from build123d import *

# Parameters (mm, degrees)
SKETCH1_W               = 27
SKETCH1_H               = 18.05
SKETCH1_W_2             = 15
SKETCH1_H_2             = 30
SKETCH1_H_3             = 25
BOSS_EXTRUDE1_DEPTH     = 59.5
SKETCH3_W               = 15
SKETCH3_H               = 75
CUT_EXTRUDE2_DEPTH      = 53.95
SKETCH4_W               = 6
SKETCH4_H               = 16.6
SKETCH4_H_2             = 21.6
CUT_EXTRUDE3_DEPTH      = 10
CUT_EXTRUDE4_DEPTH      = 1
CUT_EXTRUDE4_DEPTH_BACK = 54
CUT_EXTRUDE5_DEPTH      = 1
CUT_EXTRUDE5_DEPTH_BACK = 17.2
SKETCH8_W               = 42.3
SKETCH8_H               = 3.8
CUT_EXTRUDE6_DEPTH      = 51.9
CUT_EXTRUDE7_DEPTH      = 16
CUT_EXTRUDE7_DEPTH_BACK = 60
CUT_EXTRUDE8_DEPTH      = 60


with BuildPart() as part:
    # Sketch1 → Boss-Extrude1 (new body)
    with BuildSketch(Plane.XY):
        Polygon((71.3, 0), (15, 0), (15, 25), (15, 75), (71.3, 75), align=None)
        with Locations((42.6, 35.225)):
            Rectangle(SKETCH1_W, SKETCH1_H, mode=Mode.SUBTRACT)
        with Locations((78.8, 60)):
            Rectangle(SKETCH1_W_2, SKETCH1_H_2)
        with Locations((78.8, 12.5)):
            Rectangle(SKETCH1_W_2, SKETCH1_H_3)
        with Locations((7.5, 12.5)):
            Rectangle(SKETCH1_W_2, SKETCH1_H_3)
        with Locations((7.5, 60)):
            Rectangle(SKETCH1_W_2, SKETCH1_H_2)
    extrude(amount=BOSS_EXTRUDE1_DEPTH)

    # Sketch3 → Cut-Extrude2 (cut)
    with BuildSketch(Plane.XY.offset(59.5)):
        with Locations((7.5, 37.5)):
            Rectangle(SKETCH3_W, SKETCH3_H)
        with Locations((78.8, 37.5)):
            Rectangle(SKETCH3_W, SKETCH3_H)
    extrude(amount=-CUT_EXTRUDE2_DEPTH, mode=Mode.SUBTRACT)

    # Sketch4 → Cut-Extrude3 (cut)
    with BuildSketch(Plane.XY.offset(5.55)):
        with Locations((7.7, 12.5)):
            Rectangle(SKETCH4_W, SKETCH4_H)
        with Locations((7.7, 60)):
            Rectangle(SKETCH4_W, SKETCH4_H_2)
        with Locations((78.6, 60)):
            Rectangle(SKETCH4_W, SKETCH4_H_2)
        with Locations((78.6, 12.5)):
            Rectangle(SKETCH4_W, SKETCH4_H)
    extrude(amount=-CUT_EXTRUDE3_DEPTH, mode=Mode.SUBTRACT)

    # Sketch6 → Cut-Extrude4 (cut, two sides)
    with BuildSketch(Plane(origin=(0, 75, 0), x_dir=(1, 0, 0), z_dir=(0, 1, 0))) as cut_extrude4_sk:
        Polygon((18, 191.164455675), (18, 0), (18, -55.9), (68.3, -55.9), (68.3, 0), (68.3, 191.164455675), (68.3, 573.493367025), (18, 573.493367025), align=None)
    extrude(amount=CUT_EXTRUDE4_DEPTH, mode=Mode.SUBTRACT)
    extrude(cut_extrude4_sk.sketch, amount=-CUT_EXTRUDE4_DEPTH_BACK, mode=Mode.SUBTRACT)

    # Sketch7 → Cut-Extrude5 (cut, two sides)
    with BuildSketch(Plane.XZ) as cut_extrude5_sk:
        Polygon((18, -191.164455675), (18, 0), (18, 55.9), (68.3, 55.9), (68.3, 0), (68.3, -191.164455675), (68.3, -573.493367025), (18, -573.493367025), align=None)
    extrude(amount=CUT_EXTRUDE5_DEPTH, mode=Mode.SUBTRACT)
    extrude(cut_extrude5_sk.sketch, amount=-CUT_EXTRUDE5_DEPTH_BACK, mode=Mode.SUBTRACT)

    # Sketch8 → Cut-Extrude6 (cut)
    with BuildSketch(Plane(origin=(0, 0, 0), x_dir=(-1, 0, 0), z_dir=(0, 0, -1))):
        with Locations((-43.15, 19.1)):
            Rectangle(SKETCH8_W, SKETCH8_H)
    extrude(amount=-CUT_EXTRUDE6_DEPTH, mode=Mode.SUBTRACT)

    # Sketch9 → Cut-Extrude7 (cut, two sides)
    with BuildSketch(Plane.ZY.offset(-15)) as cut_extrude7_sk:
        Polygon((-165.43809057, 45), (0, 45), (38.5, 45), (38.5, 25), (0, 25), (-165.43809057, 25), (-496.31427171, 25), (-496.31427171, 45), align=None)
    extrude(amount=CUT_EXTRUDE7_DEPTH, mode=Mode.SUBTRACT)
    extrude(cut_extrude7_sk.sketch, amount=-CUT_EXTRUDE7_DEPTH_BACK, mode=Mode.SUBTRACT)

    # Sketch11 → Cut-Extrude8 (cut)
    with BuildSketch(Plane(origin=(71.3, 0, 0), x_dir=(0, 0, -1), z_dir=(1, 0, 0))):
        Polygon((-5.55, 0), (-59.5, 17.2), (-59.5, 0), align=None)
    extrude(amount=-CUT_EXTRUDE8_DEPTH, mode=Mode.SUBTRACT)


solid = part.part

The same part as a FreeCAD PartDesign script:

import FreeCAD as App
import Part
import Sketcher
from FreeCAD import Vector

doc = App.newDocument("Part")
body = doc.addObject("PartDesign::Body", "Body")

sketch1 = doc.addObject("Sketcher::SketchObject", "Sketch")
body.addObject(sketch1)
sketch1.AttachmentSupport = (doc.XY_Plane, [""])
sketch1.MapMode = "FlatFace"
sketch1.addGeometry([
    Part.LineSegment(Vector(0, 0, 0), Vector(86.3, 0, 0)),
    Part.LineSegment(Vector(86.3, 0, 0), Vector(86.3, 25, 0)),
    Part.LineSegment(Vector(86.3, 25, 0), Vector(71.3, 25, 0)),
    Part.LineSegment(Vector(71.3, 25, 0), Vector(71.3, 45, 0)),
    Part.LineSegment(Vector(71.3, 45, 0), Vector(86.3, 45, 0)),
    Part.LineSegment(Vector(86.3, 45, 0), Vector(86.3, 75, 0)),
    Part.LineSegment(Vector(86.3, 75, 0), Vector(0, 75, 0)),
    Part.LineSegment(Vector(0, 75, 0), Vector(0, 45, 0)),
    Part.LineSegment(Vector(0, 45, 0), Vector(15, 45, 0)),
    Part.LineSegment(Vector(15, 45, 0), Vector(15, 25, 0)),
    Part.LineSegment(Vector(15, 25, 0), Vector(0, 25, 0)),
    Part.LineSegment(Vector(0, 25, 0), Vector(0, 0, 0)),
    Part.LineSegment(Vector(29.1, 26.2, 0), Vector(29.1, 44.25, 0)),
    Part.LineSegment(Vector(29.1, 44.25, 0), Vector(56.1, 44.25, 0)),
    Part.LineSegment(Vector(56.1, 44.25, 0), Vector(56.1, 26.2, 0)),
    Part.LineSegment(Vector(56.1, 26.2, 0), Vector(29.1, 26.2, 0)),
], False)
sketch1.addConstraint([
    Sketcher.Constraint("Coincident", 0, 2, 1, 1),
    Sketcher.Constraint("Coincident", 1, 2, 2, 1),
    Sketcher.Constraint("Coincident", 2, 2, 3, 1),
    Sketcher.Constraint("Coincident", 3, 2, 4, 1),
    Sketcher.Constraint("Coincident", 4, 2, 5, 1),
    Sketcher.Constraint("Coincident", 5, 2, 6, 1),
    Sketcher.Constraint("Coincident", 6, 2, 7, 1),
    Sketcher.Constraint("Coincident", 7, 2, 8, 1),
    Sketcher.Constraint("Coincident", 8, 2, 9, 1),
    Sketcher.Constraint("Coincident", 9, 2, 10, 1),
    Sketcher.Constraint("Coincident", 10, 2, 11, 1),
    Sketcher.Constraint("Coincident", 11, 2, 0, 1),
    Sketcher.Constraint("Coincident", 12, 2, 13, 1),
    Sketcher.Constraint("Coincident", 13, 2, 14, 1),
    Sketcher.Constraint("Coincident", 14, 2, 15, 1),
    Sketcher.Constraint("Coincident", 15, 2, 12, 1),
    Sketcher.Constraint("Horizontal", 0),
    Sketcher.Constraint("Vertical", 1),
    Sketcher.Constraint("Horizontal", 2),
    Sketcher.Constraint("Vertical", 3),
    Sketcher.Constraint("Horizontal", 4),
    Sketcher.Constraint("Vertical", 5),
    Sketcher.Constraint("Horizontal", 6),
    Sketcher.Constraint("Vertical", 7),
    Sketcher.Constraint("Horizontal", 8),
    Sketcher.Constraint("Vertical", 9),
    Sketcher.Constraint("Horizontal", 10),
    Sketcher.Constraint("Vertical", 11),
    Sketcher.Constraint("Vertical", 12),
    Sketcher.Constraint("Horizontal", 13),
    Sketcher.Constraint("Vertical", 14),
    Sketcher.Constraint("Horizontal", 15),
    Sketcher.Constraint("Coincident", 11, 2, -1, 1),
    Sketcher.Constraint("PointOnObject", 6, 2, -2),
    Sketcher.Constraint("Horizontal", 4, 2, 7, 2),
    Sketcher.Constraint("Horizontal", 2, 2, 9, 2),
    Sketcher.Constraint("Vertical", 1, 2, 4, 2),
    Sketcher.Constraint("Equal", 4, 8),
    Sketcher.Constraint("DistanceX", 2, 2, 2, 1, 15.0),
    Sketcher.Constraint("DistanceX", 13, 1, 13, 2, 27.0),
    Sketcher.Constraint("DistanceY", 1, 1, 1, 2, 25.0),
    Sketcher.Constraint("DistanceY", 3, 1, 3, 2, 20.0),
    Sketcher.Constraint("DistanceY", 5, 1, 5, 2, 30.0),
    Sketcher.Constraint("DistanceX", 0, 1, 0, 2, 86.3),
    Sketcher.Constraint("DistanceY", 12, 1, 12, 2, 18.05),
    Sketcher.Constraint("DistanceX", -1, 1, 12, 2, 29.1),
    Sketcher.Constraint("DistanceY", -1, 1, 14, 2, 26.2),
])
pad1 = doc.addObject("PartDesign::Pad", "Pad")
body.addObject(pad1)
pad1.Profile = sketch1
pad1.Length = 59.5

sketch2 = doc.addObject("Sketcher::SketchObject", "Sketch001")
body.addObject(sketch2)
sketch2.AttachmentSupport = (doc.XY_Plane, [""])
sketch2.MapMode = "FlatFace"
sketch2.AttachmentOffset = App.Placement(Vector(0, 0, 59.5), App.Rotation())
sketch2.addGeometry([
    Part.LineSegment(Vector(0, 75, 0), Vector(0, 0, 0)),
    Part.LineSegment(Vector(0, 0, 0), Vector(15, 0, 0)),
    Part.LineSegment(Vector(15, 0, 0), Vector(15, 75, 0)),
    Part.LineSegment(Vector(15, 75, 0), Vector(0, 75, 0)),
    Part.LineSegment(Vector(71.3, 75, 0), Vector(71.3, 0, 0)),
    Part.LineSegment(Vector(71.3, 0, 0), Vector(86.3, 0, 0)),
    Part.LineSegment(Vector(86.3, 0, 0), Vector(86.3, 75, 0)),
    Part.LineSegment(Vector(86.3, 75, 0), Vector(71.3, 75, 0)),
], False)
sketch2.addConstraint([
    Sketcher.Constraint("Coincident", 0, 2, 1, 1),
    Sketcher.Constraint("Coincident", 1, 2, 2, 1),
    Sketcher.Constraint("Coincident", 2, 2, 3, 1),
    Sketcher.Constraint("Coincident", 3, 2, 0, 1),
    Sketcher.Constraint("Coincident", 4, 2, 5, 1),
    Sketcher.Constraint("Coincident", 5, 2, 6, 1),
    Sketcher.Constraint("Coincident", 6, 2, 7, 1),
    Sketcher.Constraint("Coincident", 7, 2, 4, 1),
    Sketcher.Constraint("Vertical", 0),
    Sketcher.Constraint("Horizontal", 1),
    Sketcher.Constraint("Vertical", 2),
    Sketcher.Constraint("Horizontal", 3),
    Sketcher.Constraint("Vertical", 4),
    Sketcher.Constraint("Horizontal", 5),
    Sketcher.Constraint("Vertical", 6),
    Sketcher.Constraint("Horizontal", 7),
    Sketcher.Constraint("Coincident", 0, 2, -1, 1),
    Sketcher.Constraint("PointOnObject", 4, 2, -1),
    Sketcher.Constraint("Horizontal", 3, 2, 6, 2),
    Sketcher.Constraint("Equal", 3, 5),
    Sketcher.Constraint("DistanceX", 1, 1, 1, 2, 15.0),
    Sketcher.Constraint("DistanceY", 0, 2, 0, 1, 75.0),
    Sketcher.Constraint("DistanceX", -1, 1, 4, 2, 71.3),
])
pocket1 = doc.addObject("PartDesign::Pocket", "Pocket")
body.addObject(pocket1)
pocket1.Profile = sketch2
pocket1.Length = 53.95

sketch3 = doc.addObject("Sketcher::SketchObject", "Sketch002")
body.addObject(sketch3)
sketch3.AttachmentSupport = (doc.XY_Plane, [""])
sketch3.MapMode = "FlatFace"
sketch3.AttachmentOffset = App.Placement(Vector(0, 0, 5.55), App.Rotation())
sketch3.addGeometry([
    Part.LineSegment(Vector(4.7, 20.8, 0), Vector(4.7, 4.2, 0)),
    Part.LineSegment(Vector(4.7, 4.2, 0), Vector(10.7, 4.2, 0)),
    Part.LineSegment(Vector(10.7, 4.2, 0), Vector(10.7, 20.8, 0)),
    Part.LineSegment(Vector(10.7, 20.8, 0), Vector(4.7, 20.8, 0)),
    Part.LineSegment(Vector(4.7, 70.8, 0), Vector(4.7, 49.2, 0)),
    Part.LineSegment(Vector(4.7, 49.2, 0), Vector(10.7, 49.2, 0)),
    Part.LineSegment(Vector(10.7, 49.2, 0), Vector(10.7, 70.8, 0)),
    Part.LineSegment(Vector(10.7, 70.8, 0), Vector(4.7, 70.8, 0)),
    Part.LineSegment(Vector(75.6, 70.8, 0), Vector(75.6, 49.2, 0)),
    Part.LineSegment(Vector(75.6, 49.2, 0), Vector(81.6, 49.2, 0)),
    Part.LineSegment(Vector(81.6, 49.2, 0), Vector(81.6, 70.8, 0)),
    Part.LineSegment(Vector(81.6, 70.8, 0), Vector(75.6, 70.8, 0)),
    Part.LineSegment(Vector(75.6, 20.8, 0), Vector(75.6, 4.2, 0)),
    Part.LineSegment(Vector(75.6, 4.2, 0), Vector(81.6, 4.2, 0)),
    Part.LineSegment(Vector(81.6, 4.2, 0), Vector(81.6, 20.8, 0)),
    Part.LineSegment(Vector(81.6, 20.8, 0), Vector(75.6, 20.8, 0)),
], False)
sketch3.addConstraint([
    Sketcher.Constraint("Coincident", 0, 2, 1, 1),
    Sketcher.Constraint("Coincident", 1, 2, 2, 1),
    Sketcher.Constraint("Coincident", 2, 2, 3, 1),
    Sketcher.Constraint("Coincident", 3, 2, 0, 1),
    Sketcher.Constraint("Coincident", 4, 2, 5, 1),
    Sketcher.Constraint("Coincident", 5, 2, 6, 1),
    Sketcher.Constraint("Coincident", 6, 2, 7, 1),
    Sketcher.Constraint("Coincident", 7, 2, 4, 1),
    Sketcher.Constraint("Coincident", 8, 2, 9, 1),
    Sketcher.Constraint("Coincident", 9, 2, 10, 1),
    Sketcher.Constraint("Coincident", 10, 2, 11, 1),
    Sketcher.Constraint("Coincident", 11, 2, 8, 1),
    Sketcher.Constraint("Coincident", 12, 2, 13, 1),
    Sketcher.Constraint("Coincident", 13, 2, 14, 1),
    Sketcher.Constraint("Coincident", 14, 2, 15, 1),
    Sketcher.Constraint("Coincident", 15, 2, 12, 1),
    Sketcher.Constraint("Vertical", 0),
    Sketcher.Constraint("Horizontal", 1),
    Sketcher.Constraint("Vertical", 2),
    Sketcher.Constraint("Horizontal", 3),
    Sketcher.Constraint("Vertical", 4),
    Sketcher.Constraint("Horizontal", 5),
    Sketcher.Constraint("Vertical", 6),
    Sketcher.Constraint("Horizontal", 7),
    Sketcher.Constraint("Vertical", 8),
    Sketcher.Constraint("Horizontal", 9),
    Sketcher.Constraint("Vertical", 10),
    Sketcher.Constraint("Horizontal", 11),
    Sketcher.Constraint("Vertical", 12),
    Sketcher.Constraint("Horizontal", 13),
    Sketcher.Constraint("Vertical", 14),
    Sketcher.Constraint("Horizontal", 15),
    Sketcher.Constraint("Horizontal", 5, 2, 8, 2),
    Sketcher.Constraint("Horizontal", 7, 2, 10, 2),
    Sketcher.Constraint("Horizontal", 1, 2, 12, 2),
    Sketcher.Constraint("Horizontal", 3, 2, 14, 2),
    Sketcher.Constraint("Vertical", 3, 2, 4, 2),
    Sketcher.Constraint("Vertical", 2, 2, 5, 2),
    Sketcher.Constraint("Vertical", 11, 2, 12, 2),
    Sketcher.Constraint("Vertical", 10, 2, 13, 2),
    Sketcher.Constraint("Equal", 7, 9),
    Sketcher.Constraint("DistanceX", 1, 1, 1, 2, 6.0),
    Sketcher.Constraint("DistanceY", 0, 2, 0, 1, 16.6),
    Sketcher.Constraint("DistanceY", 4, 2, 4, 1, 21.6),
    Sketcher.Constraint("DistanceY", 0, 2, 4, 2, 45.0),
    Sketcher.Constraint("DistanceX", -1, 1, 0, 2, 4.7),
    Sketcher.Constraint("DistanceY", -1, 1, 0, 2, 4.2),
    Sketcher.Constraint("DistanceX", -1, 1, 8, 2, 75.6),
])
pocket2 = doc.addObject("PartDesign::Pocket", "Pocket001")
body.addObject(pocket2)
pocket2.Profile = sketch3
pocket2.Length = 10

sketch4 = doc.addObject("Sketcher::SketchObject", "Sketch003")
body.addObject(sketch4)
sketch4.AttachmentSupport = (doc.XZ_Plane, [""])
sketch4.MapMode = "FlatFace"
sketch4.AttachmentOffset = App.Placement(Vector(0, 0, -75), App.Rotation())
sketch4.addGeometry([
    Part.LineSegment(Vector(18, 55.9, 0), Vector(68.3, 55.9, 0)),
    Part.LineSegment(Vector(68.3, 55.9, 0), Vector(68.3, -573.493367, 0)),
    Part.LineSegment(Vector(68.3, -573.493367, 0), Vector(18, -573.493367, 0)),
    Part.LineSegment(Vector(18, -573.493367, 0), Vector(18, 55.9, 0)),
], False)
sketch4.addConstraint([
    Sketcher.Constraint("Coincident", 0, 2, 1, 1),
    Sketcher.Constraint("Coincident", 1, 2, 2, 1),
    Sketcher.Constraint("Coincident", 2, 2, 3, 1),
    Sketcher.Constraint("Coincident", 3, 2, 0, 1),
    Sketcher.Constraint("Horizontal", 0),
    Sketcher.Constraint("Vertical", 1),
    Sketcher.Constraint("Horizontal", 2),
    Sketcher.Constraint("Vertical", 3),
    Sketcher.Constraint("DistanceX", 0, 1, 0, 2, 50.3),
    Sketcher.Constraint("DistanceX", -1, 1, 2, 2, 18.0),
    Sketcher.Constraint("DistanceY", -1, 1, 0, 2, 55.9),
    Sketcher.Constraint("DistanceY", 1, 2, 1, 1, 629.393367),
])
pocket3 = doc.addObject("PartDesign::Pocket", "Pocket002")
body.addObject(pocket3)
pocket3.Profile = sketch4
pocket3.Type = "TwoLengths"
pocket3.Length = 1
pocket3.Length2 = 54

sketch5 = doc.addObject("Sketcher::SketchObject", "Sketch004")
body.addObject(sketch5)
sketch5.AttachmentSupport = (doc.XZ_Plane, [""])
sketch5.MapMode = "FlatFace"
sketch5.addGeometry([
    Part.LineSegment(Vector(18, 55.9, 0), Vector(18, -573.493367, 0)),
    Part.LineSegment(Vector(18, -573.493367, 0), Vector(68.3, -573.493367, 0)),
    Part.LineSegment(Vector(68.3, -573.493367, 0), Vector(68.3, 55.9, 0)),
    Part.LineSegment(Vector(68.3, 55.9, 0), Vector(18, 55.9, 0)),
], False)
sketch5.addConstraint([
    Sketcher.Constraint("Coincident", 0, 2, 1, 1),
    Sketcher.Constraint("Coincident", 1, 2, 2, 1),
    Sketcher.Constraint("Coincident", 2, 2, 3, 1),
    Sketcher.Constraint("Coincident", 3, 2, 0, 1),
    Sketcher.Constraint("Vertical", 0),
    Sketcher.Constraint("Horizontal", 1),
    Sketcher.Constraint("Vertical", 2),
    Sketcher.Constraint("Horizontal", 3),
    Sketcher.Constraint("DistanceX", 1, 1, 1, 2, 50.3),
    Sketcher.Constraint("DistanceX", -1, 1, 0, 2, 18.0),
    Sketcher.Constraint("DistanceY", -1, 1, 2, 2, 55.9),
    Sketcher.Constraint("DistanceY", 0, 2, 0, 1, 629.393367),
])
pocket4 = doc.addObject("PartDesign::Pocket", "Pocket003")
body.addObject(pocket4)
pocket4.Profile = sketch5
pocket4.Type = "TwoLengths"
pocket4.Length = 1
pocket4.Length2 = 17.2
pocket4.Reversed = True

sketch6 = doc.addObject("Sketcher::SketchObject", "Sketch005")
body.addObject(sketch6)
sketch6.AttachmentSupport = (doc.XY_Plane, [""])
sketch6.MapMode = "FlatFace"
sketch6.addGeometry([
    Part.LineSegment(Vector(64.3, 21, 0), Vector(64.3, 17.2, 0)),
    Part.LineSegment(Vector(64.3, 17.2, 0), Vector(22, 17.2, 0)),
    Part.LineSegment(Vector(22, 17.2, 0), Vector(22, 21, 0)),
    Part.LineSegment(Vector(22, 21, 0), Vector(64.3, 21, 0)),
], False)
sketch6.addConstraint([
    Sketcher.Constraint("Coincident", 0, 2, 1, 1),
    Sketcher.Constraint("Coincident", 1, 2, 2, 1),
    Sketcher.Constraint("Coincident", 2, 2, 3, 1),
    Sketcher.Constraint("Coincident", 3, 2, 0, 1),
    Sketcher.Constraint("Vertical", 0),
    Sketcher.Constraint("Horizontal", 1),
    Sketcher.Constraint("Vertical", 2),
    Sketcher.Constraint("Horizontal", 3),
    Sketcher.Constraint("DistanceX", 1, 2, 1, 1, 42.3),
    Sketcher.Constraint("DistanceY", 0, 2, 0, 1, 3.8),
    Sketcher.Constraint("DistanceX", -1, 1, 1, 2, 22.0),
    Sketcher.Constraint("DistanceY", -1, 1, 2, 2, 21.0),
])
pocket5 = doc.addObject("PartDesign::Pocket", "Pocket004")
body.addObject(pocket5)
pocket5.Profile = sketch6
pocket5.Length = 51.9
pocket5.Reversed = True

sketch7 = doc.addObject("Sketcher::SketchObject", "Sketch006")
body.addObject(sketch7)
sketch7.AttachmentSupport = (doc.YZ_Plane, [""])
sketch7.MapMode = "FlatFace"
sketch7.AttachmentOffset = App.Placement(Vector(0, 0, 15), App.Rotation())
sketch7.addGeometry([
    Part.LineSegment(Vector(45, 38.5, 0), Vector(45, -496.314272, 0)),
    Part.LineSegment(Vector(45, -496.314272, 0), Vector(25, -496.314272, 0)),
    Part.LineSegment(Vector(25, -496.314272, 0), Vector(25, 38.5, 0)),
    Part.LineSegment(Vector(25, 38.5, 0), Vector(45, 38.5, 0)),
], False)
sketch7.addConstraint([
    Sketcher.Constraint("Coincident", 0, 2, 1, 1),
    Sketcher.Constraint("Coincident", 1, 2, 2, 1),
    Sketcher.Constraint("Coincident", 2, 2, 3, 1),
    Sketcher.Constraint("Coincident", 3, 2, 0, 1),
    Sketcher.Constraint("Vertical", 0),
    Sketcher.Constraint("Horizontal", 1),
    Sketcher.Constraint("Vertical", 2),
    Sketcher.Constraint("Horizontal", 3),
    Sketcher.Constraint("DistanceX", 1, 2, 1, 1, 20.0),
    Sketcher.Constraint("DistanceX", -1, 1, 0, 2, 45.0),
    Sketcher.Constraint("DistanceY", -1, 1, 2, 2, 38.5),
    Sketcher.Constraint("DistanceY", 0, 2, 0, 1, 534.814272),
])
pocket6 = doc.addObject("PartDesign::Pocket", "Pocket005")
body.addObject(pocket6)
pocket6.Profile = sketch7
pocket6.Type = "ThroughAll"
pocket6.Midplane = True

sketch8 = doc.addObject("Sketcher::SketchObject", "Sketch007")
body.addObject(sketch8)
sketch8.AttachmentSupport = (doc.YZ_Plane, [""])
sketch8.MapMode = "FlatFace"
sketch8.AttachmentOffset = App.Placement(Vector(0, 0, 71.3), App.Rotation())
sketch8.addGeometry([
    Part.LineSegment(Vector(0, 5.55, 0), Vector(17.2, 59.5, 0)),
    Part.LineSegment(Vector(17.2, 59.5, 0), Vector(0, 59.5, 0)),
    Part.LineSegment(Vector(0, 59.5, 0), Vector(0, 5.55, 0)),
], False)
sketch8.addConstraint([
    Sketcher.Constraint("Coincident", 0, 2, 1, 1),
    Sketcher.Constraint("Coincident", 1, 2, 2, 1),
    Sketcher.Constraint("Coincident", 2, 2, 0, 1),
    Sketcher.Constraint("Horizontal", 1),
    Sketcher.Constraint("Vertical", 2),
    Sketcher.Constraint("PointOnObject", 1, 2, -2),
    Sketcher.Constraint("DistanceX", 1, 2, 1, 1, 17.2),
    Sketcher.Constraint("DistanceY", 2, 2, 2, 1, 53.95),
    Sketcher.Constraint("DistanceY", -1, 1, 0, 2, 59.5),
])
pocket7 = doc.addObject("PartDesign::Pocket", "Pocket006")
body.addObject(pocket7)
pocket7.Profile = sketch8
pocket7.Length = 60

doc.recompute()
